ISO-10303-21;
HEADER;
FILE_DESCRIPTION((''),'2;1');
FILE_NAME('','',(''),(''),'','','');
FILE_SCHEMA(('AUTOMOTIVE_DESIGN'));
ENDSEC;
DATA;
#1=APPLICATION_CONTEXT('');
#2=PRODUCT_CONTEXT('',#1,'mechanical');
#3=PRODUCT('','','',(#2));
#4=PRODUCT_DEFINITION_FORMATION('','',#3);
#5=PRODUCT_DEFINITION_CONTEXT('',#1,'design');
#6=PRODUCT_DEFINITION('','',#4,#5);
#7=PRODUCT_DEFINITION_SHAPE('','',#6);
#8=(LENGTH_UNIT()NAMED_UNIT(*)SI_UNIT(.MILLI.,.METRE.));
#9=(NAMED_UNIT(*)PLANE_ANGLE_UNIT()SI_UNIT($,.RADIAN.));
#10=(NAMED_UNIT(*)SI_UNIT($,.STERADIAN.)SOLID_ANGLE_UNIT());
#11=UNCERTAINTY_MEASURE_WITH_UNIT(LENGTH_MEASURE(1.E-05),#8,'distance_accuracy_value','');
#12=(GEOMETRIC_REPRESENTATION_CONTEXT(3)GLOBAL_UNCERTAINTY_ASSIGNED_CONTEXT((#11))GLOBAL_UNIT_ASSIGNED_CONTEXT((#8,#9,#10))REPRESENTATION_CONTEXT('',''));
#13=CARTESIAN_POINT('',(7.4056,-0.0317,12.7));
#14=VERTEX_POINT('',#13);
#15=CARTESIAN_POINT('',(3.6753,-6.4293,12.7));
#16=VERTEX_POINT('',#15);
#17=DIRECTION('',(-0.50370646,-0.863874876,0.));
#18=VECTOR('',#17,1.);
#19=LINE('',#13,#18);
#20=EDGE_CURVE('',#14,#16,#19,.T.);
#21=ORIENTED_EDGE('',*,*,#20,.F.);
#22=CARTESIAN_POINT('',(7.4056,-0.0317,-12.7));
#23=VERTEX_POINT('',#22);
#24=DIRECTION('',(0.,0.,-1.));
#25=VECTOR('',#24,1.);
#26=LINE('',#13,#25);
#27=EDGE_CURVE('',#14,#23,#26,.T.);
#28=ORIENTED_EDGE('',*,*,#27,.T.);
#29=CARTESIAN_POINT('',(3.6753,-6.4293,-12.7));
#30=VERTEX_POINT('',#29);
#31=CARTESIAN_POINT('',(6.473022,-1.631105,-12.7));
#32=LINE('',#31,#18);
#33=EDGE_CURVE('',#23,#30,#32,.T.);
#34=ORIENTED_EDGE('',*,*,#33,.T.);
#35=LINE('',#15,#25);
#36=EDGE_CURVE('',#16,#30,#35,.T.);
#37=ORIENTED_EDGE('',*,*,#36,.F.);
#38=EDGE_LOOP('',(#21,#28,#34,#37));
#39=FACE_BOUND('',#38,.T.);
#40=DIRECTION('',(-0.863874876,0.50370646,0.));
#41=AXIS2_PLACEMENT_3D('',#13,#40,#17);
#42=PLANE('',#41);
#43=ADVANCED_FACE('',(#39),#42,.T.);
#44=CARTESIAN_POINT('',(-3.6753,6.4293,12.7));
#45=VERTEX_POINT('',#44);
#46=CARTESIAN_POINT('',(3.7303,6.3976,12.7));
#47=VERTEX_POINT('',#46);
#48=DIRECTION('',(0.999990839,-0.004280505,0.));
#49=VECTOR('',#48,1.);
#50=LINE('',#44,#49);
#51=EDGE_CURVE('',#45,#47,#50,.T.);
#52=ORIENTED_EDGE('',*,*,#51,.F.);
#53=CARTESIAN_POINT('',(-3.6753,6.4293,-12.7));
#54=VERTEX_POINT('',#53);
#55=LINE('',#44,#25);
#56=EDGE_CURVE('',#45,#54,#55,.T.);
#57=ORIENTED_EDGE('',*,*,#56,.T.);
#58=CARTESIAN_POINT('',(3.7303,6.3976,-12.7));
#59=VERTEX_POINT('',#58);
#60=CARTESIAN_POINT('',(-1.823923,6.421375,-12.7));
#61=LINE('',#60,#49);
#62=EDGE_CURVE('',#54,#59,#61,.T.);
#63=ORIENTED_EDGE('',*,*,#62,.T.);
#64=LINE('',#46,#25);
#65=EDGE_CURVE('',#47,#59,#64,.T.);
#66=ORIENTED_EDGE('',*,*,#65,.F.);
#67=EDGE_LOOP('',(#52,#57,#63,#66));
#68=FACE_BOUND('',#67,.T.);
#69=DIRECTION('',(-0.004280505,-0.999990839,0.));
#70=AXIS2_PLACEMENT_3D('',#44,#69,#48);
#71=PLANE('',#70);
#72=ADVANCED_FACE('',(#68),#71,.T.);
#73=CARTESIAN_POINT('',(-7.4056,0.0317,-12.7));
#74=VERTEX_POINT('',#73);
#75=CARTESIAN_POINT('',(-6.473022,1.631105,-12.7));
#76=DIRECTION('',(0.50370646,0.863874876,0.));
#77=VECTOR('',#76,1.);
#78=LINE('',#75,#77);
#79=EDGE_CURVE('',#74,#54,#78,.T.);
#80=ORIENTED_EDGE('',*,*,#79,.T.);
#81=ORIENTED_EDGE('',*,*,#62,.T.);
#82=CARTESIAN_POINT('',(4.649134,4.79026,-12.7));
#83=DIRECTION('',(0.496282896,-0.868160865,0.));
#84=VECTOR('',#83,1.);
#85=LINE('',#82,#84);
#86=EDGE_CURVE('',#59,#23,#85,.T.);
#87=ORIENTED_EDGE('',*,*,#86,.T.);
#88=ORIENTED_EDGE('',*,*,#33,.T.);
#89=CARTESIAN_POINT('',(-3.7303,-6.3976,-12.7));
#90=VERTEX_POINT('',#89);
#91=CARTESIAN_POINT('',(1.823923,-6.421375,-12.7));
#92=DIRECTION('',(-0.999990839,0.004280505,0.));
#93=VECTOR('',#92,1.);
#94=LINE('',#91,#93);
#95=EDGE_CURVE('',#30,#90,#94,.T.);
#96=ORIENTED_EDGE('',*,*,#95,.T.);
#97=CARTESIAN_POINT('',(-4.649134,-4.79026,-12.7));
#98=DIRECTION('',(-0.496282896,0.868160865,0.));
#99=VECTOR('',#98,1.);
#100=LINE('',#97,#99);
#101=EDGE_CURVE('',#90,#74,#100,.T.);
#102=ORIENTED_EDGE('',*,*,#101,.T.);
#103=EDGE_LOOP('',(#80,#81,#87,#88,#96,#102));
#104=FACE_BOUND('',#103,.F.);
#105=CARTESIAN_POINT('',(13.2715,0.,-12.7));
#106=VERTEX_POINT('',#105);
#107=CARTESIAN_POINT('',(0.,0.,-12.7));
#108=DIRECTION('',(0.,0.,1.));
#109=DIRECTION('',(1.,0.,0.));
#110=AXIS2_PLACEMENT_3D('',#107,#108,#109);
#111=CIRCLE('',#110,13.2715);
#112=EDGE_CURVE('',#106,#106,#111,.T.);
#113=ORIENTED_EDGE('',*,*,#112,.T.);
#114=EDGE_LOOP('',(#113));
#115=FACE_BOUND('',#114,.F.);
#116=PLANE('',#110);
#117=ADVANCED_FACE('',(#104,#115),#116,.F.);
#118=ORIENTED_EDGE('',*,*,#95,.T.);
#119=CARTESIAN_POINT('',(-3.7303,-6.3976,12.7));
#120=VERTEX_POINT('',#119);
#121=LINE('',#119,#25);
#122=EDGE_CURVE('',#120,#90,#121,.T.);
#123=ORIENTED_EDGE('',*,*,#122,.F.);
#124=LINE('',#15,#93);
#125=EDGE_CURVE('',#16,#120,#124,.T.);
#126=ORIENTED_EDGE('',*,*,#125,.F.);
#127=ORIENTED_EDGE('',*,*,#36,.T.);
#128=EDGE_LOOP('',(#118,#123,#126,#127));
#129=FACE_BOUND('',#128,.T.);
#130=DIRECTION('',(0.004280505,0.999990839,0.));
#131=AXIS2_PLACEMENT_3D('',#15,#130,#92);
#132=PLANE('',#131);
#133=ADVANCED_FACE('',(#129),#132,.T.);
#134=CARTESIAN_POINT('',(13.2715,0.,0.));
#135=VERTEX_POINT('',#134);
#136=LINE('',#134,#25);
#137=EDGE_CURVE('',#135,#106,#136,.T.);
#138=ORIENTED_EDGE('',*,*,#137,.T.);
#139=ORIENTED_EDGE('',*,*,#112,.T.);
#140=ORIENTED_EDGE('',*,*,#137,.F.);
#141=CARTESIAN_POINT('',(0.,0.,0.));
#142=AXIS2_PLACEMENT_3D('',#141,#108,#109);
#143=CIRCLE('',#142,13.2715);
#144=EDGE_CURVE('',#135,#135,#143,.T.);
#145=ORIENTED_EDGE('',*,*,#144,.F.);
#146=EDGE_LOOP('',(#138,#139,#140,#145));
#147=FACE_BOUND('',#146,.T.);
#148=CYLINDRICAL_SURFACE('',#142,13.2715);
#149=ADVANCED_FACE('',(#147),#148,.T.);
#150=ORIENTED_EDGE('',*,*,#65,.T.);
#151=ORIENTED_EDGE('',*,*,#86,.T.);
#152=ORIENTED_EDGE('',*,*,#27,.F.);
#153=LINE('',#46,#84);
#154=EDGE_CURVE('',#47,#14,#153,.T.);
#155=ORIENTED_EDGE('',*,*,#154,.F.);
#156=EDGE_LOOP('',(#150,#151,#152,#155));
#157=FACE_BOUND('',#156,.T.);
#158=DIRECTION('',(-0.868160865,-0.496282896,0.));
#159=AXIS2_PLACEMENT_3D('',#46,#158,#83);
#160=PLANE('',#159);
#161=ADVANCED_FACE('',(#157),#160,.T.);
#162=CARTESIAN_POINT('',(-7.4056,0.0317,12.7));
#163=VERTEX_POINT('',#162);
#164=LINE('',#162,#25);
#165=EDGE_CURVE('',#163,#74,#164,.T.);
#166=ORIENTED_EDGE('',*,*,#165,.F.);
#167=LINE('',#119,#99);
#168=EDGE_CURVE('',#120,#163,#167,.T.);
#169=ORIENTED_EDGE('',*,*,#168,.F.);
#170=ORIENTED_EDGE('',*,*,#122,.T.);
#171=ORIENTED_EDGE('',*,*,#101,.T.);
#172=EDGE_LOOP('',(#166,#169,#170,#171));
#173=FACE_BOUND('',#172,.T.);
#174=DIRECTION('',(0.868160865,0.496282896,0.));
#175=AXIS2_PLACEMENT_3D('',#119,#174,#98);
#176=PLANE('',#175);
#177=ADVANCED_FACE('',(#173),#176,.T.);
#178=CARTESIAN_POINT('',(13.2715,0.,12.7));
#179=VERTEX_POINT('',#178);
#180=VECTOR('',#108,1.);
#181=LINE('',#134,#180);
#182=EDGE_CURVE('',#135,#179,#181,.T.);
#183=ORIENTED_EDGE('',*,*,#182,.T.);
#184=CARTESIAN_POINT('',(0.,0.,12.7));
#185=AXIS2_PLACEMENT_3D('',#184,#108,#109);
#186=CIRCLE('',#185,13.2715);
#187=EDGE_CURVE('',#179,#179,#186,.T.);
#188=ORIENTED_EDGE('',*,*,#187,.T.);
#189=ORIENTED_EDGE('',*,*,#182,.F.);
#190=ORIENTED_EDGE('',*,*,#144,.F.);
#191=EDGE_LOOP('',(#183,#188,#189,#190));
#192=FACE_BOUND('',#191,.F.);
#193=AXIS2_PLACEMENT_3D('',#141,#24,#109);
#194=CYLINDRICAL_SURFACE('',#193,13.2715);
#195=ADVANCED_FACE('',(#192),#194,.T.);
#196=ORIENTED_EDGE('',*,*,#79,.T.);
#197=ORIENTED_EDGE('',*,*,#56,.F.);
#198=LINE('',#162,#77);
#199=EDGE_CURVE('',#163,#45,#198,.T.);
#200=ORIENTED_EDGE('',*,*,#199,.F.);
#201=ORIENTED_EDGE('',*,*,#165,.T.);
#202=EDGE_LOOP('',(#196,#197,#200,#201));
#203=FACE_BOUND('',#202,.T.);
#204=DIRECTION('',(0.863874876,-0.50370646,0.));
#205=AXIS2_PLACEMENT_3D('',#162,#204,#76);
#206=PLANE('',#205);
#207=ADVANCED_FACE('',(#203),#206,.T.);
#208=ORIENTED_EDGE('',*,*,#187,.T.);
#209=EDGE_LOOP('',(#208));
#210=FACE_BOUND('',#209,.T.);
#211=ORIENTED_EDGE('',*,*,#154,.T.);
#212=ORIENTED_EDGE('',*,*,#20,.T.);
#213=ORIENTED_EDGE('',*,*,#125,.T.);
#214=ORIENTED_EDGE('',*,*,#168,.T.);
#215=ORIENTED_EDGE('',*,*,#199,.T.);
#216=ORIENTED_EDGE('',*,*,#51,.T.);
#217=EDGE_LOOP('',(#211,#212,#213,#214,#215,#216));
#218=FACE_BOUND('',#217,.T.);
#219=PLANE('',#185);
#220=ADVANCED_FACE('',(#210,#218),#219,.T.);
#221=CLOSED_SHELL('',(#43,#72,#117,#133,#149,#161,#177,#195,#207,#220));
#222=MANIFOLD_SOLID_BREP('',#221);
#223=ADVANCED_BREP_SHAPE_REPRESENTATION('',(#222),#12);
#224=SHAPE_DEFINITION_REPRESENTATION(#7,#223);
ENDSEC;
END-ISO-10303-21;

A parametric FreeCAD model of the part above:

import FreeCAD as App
import Part
import Sketcher
Q = App.Units.Quantity


def add_polygon(sketch, points):
    """Adds a closed chain of lines whose ends are joined by coincident constraints."""
    first, n = sketch.GeometryCount, len(points)
    for a, b in zip(points, points[1:] + points[:1]):
        sketch.addGeometry(Part.LineSegment(App.Vector(*a, 0), App.Vector(*b, 0)), False)
    for i in range(n):
        sketch.addConstraint(Sketcher.Constraint("Coincident", first + i, 2, first + (i + 1) % n, 1))

doc = App.newDocument("Part")
body = doc.addObject("PartDesign::Body", "Body")

# Sketch on XY plane
sketch1 = doc.addObject("Sketcher::SketchObject", "Sketch")
body.addObject(sketch1)
sketch1.AttachmentSupport = (doc.XY_Plane, [""])
sketch1.MapMode = "FlatFace"
sketch1.addGeometry(Part.Circle(App.Vector(0, 0, 0), App.Vector(0, 0, 1), 13), False)
sketch1.addConstraint(Sketcher.Constraint("Coincident", 0, 3, -1, 1))
sketch1.addConstraint(Sketcher.Constraint("Diameter", 0, Q("1.045 in")))
pad1 = doc.addObject("PartDesign::Pad", "Pad")
body.addObject(pad1)
pad1.Profile = sketch1
pad1.Length = Q("1 in")
pad1.Midplane = True

# Sketch on XY plane
sketch2 = doc.addObject("Sketcher::SketchObject", "Sketch001")
body.addObject(sketch2)
sketch2.AttachmentSupport = (doc.XY_Plane, [""])
sketch2.MapMode = "FlatFace"
sketch2.AttachmentOffset = App.Placement(App.Vector(0, 0, 0.5 * 25.4), App.Rotation())
add_polygon(sketch2, [(-4, -6), (4, -6), (7, 0), (4, 6), (-4, 6), (-7, 0)])  # lines 0-5
sketch2.addConstraint(Sketcher.Constraint("Symmetric", 0, 2, 3, 2, -1, 1))
sketch2.addConstraint(Sketcher.Constraint("Symmetric", 1, 2, 4, 2, -1, 1))
sketch2.addConstraint(Sketcher.Constraint("Symmetric", 2, 2, 5, 2, -1, 1))
sketch2.addConstraint(Sketcher.Constraint("Equal", 0, 1))
sketch2.addConstraint(Sketcher.Constraint("Equal", 1, 2))
sketch2.addConstraint(Sketcher.Constraint("DistanceY", 0, 2, 2, 2, Q("0.505 in")))
sketch2.addConstraint(Sketcher.Constraint("DistanceX", -1, 1, 0, 2, Q("0.1447 in")))
sketch2.addConstraint(Sketcher.Constraint("DistanceX", 2, 2, 1, 2, Q("0.1447 in")))
sketch2.addConstraint(Sketcher.Constraint("DistanceY", 1, 2, 4, 2, Q("0.0025 in")))
pocket1 = doc.addObject("PartDesign::Pocket", "Pocket")
body.addObject(pocket1)
pocket1.Profile = sketch2
pocket1.Type = "ThroughAll"

doc.recompute()
